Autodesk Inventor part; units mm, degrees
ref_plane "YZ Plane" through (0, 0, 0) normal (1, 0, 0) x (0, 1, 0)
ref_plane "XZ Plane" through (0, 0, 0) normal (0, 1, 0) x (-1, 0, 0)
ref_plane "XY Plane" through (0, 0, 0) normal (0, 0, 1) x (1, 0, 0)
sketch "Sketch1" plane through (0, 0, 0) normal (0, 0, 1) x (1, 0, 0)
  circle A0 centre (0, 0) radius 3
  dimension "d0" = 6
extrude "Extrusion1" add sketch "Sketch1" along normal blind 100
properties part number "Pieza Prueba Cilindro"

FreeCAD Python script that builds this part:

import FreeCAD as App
import Part
import Sketcher
Q = App.Units.Quantity

doc = App.newDocument("Part")
body = doc.addObject("PartDesign::Body", "Body")

# Sketch on XY plane
sketch1 = body.newObject("Sketcher::SketchObject", "Sketch")
sketch1.AttachmentSupport = (doc.getObject("XY_Plane"), [""])
sketch1.MapMode = "FlatFace"
sketch1.addGeometry(Part.Circle(App.Vector(0, 0, 0), App.Vector(0, 0, 1), 3), False)
sketch1.addConstraint(Sketcher.Constraint("Coincident", 0, 3, -1, 1))
sketch1.addConstraint(Sketcher.Constraint("Diameter", 0, Q("6 mm")))
pad1 = body.newObject("PartDesign::Pad", "Pad")
pad1.Profile = sketch1
pad1.Length = 100

doc.recompute()
